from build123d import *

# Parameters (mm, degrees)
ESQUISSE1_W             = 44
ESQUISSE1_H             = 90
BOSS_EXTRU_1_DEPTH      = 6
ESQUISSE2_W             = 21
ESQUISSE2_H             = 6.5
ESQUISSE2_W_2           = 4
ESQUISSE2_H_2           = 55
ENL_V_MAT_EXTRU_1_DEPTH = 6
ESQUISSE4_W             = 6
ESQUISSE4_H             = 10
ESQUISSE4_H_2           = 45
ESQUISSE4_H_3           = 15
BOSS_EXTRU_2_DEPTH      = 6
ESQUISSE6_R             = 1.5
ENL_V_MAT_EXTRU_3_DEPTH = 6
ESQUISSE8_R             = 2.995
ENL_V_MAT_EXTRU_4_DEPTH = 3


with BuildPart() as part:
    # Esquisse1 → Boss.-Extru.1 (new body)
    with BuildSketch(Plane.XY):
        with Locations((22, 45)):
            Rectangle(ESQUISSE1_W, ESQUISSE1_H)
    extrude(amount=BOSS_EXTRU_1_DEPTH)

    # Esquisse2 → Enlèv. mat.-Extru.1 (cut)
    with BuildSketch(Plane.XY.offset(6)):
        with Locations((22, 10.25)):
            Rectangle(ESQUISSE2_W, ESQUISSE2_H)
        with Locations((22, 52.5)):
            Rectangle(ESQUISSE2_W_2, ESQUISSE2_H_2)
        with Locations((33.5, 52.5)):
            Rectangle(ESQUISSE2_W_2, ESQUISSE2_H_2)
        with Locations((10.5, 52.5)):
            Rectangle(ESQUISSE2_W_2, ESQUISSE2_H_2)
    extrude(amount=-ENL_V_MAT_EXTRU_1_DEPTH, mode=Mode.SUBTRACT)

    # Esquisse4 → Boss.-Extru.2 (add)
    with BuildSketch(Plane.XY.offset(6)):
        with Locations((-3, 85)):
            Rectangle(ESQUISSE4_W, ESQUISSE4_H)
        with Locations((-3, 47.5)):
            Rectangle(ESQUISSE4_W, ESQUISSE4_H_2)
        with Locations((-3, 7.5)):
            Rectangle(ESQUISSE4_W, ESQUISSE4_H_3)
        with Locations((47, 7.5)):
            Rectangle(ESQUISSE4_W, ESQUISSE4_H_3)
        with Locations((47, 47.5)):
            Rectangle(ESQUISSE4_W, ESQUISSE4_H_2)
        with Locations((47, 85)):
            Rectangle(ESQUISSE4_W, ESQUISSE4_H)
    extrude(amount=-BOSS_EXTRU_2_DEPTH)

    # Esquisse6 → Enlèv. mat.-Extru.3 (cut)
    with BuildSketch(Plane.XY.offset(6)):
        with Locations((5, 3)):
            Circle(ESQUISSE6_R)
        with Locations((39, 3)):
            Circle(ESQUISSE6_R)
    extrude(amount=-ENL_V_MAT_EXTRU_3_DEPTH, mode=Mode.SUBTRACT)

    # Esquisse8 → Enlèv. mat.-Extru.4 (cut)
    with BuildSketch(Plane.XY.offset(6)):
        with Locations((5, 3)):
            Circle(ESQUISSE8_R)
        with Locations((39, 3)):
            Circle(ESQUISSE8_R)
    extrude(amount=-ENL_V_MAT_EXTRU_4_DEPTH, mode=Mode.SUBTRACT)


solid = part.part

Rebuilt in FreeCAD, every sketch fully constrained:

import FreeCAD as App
import Part
import Sketcher
Q = App.Units.Quantity

doc = App.newDocument("Part")
params = doc.addObject("Spreadsheet::Sheet", "Params")
for row, (alias, value) in enumerate([
    ("sketch1_width", "44 mm"),
    ("sketch1_height", "90 mm"),
    ("pad1_length", "6 mm"),
    ("sketch2_width", "21 mm"),
    ("sketch2_width2", "4 mm"),
    ("sketch2_height", "55 mm"),
    ("sketch2_height2", "6.5 mm"),
    ("pocket1_length", "6 mm"),
    ("sketch3_width", "6 mm"),
    ("sketch3_height", "10 mm"),
    ("sketch3_height2", "45 mm"),
    ("sketch3_height3", "15 mm"),
    ("pad2_length", "6 mm"),
    ("sketch4_diameter", "3 mm"),
    ("pocket2_length", "6 mm"),
    ("sketch5_diameter", "5.99 mm"),
    ("pocket3_length", "3 mm"),
], start=1):
    params.set(f"A{row}", alias)
    params.set(f"B{row}", "=" + value)
    params.setAlias(f"B{row}", alias)

body = doc.addObject("PartDesign::Body", "Body")

# Sketch on XY plane
sketch1 = doc.addObject("Sketcher::SketchObject", "Sketch")
body.addObject(sketch1)
sketch1.AttachmentSupport = (doc.XY_Plane, [""])
sketch1.MapMode = "FlatFace"
sketch1.addGeometry([
    Part.LineSegment(App.Vector(0, 90, 0), App.Vector(0, 0, 0)),
    Part.LineSegment(App.Vector(0, 0, 0), App.Vector(44, 0, 0)),
    Part.LineSegment(App.Vector(44, 0, 0), App.Vector(44, 90, 0)),
    Part.LineSegment(App.Vector(44, 90, 0), App.Vector(0, 90, 0)),
], False)
sketch1.addConstraint([
    Sketcher.Constraint("Coincident", 0, 2, 1, 1),
    Sketcher.Constraint("Coincident", 1, 2, 2, 1),
    Sketcher.Constraint("Coincident", 2, 2, 3, 1),
    Sketcher.Constraint("Coincident", 3, 2, 0, 1),
    Sketcher.Constraint("Vertical", 0),
    Sketcher.Constraint("Horizontal", 1),
    Sketcher.Constraint("Vertical", 2),
    Sketcher.Constraint("Horizontal", 3),
    Sketcher.Constraint("Coincident", 0, 2, -1, 1),
    Sketcher.Constraint("DistanceX", 1, 1, 1, 2, Q("44 mm")),
    Sketcher.Constraint("DistanceY", 0, 2, 0, 1, Q("90 mm")),
])
sketch1.setExpression("Constraints[9]", "Params.sketch1_width")
sketch1.setExpression("Constraints[10]", "Params.sketch1_height")
pad1 = doc.addObject("PartDesign::Pad", "Pad")
body.addObject(pad1)
pad1.Profile = sketch1
pad1.setExpression("Length", "Params.pad1_length")

# Sketch on XY plane
sketch2 = doc.addObject("Sketcher::SketchObject", "Sketch001")
body.addObject(sketch2)
sketch2.AttachmentSupport = (doc.XY_Plane, [""])
sketch2.MapMode = "FlatFace"
sketch2.AttachmentOffset = App.Placement(App.Vector(0, 0, 6), App.Rotation())
sketch2.addGeometry([
    Part.LineSegment(App.Vector(11.5, 13.5, 0), App.Vector(11.5, 7, 0)),  # 0
    Part.LineSegment(App.Vector(11.5, 7, 0), App.Vector(32.5, 7, 0)),  # 1
    Part.LineSegment(App.Vector(32.5, 7, 0), App.Vector(32.5, 13.5, 0)),  # 2
    Part.LineSegment(App.Vector(32.5, 13.5, 0), App.Vector(11.5, 13.5, 0)),  # 3
    Part.LineSegment(App.Vector(20, 80, 0), App.Vector(20, 25, 0)),  # 4
    Part.LineSegment(App.Vector(20, 25, 0), App.Vector(24, 25, 0)),  # 5
    Part.LineSegment(App.Vector(24, 25, 0), App.Vector(24, 80, 0)),  # 6
    Part.LineSegment(App.Vector(24, 80, 0), App.Vector(20, 80, 0)),  # 7
    Part.LineSegment(App.Vector(31.5, 80, 0), App.Vector(31.5, 25, 0)),  # 8
    Part.LineSegment(App.Vector(31.5, 25, 0), App.Vector(35.5, 25, 0)),  # 9
    Part.LineSegment(App.Vector(35.5, 25, 0), App.Vector(35.5, 80, 0)),  # 10
    Part.LineSegment(App.Vector(35.5, 80, 0), App.Vector(31.5, 80, 0)),  # 11
    Part.LineSegment(App.Vector(8.5, 80, 0), App.Vector(8.5, 25, 0)),  # 12
    Part.LineSegment(App.Vector(8.5, 25, 0), App.Vector(12.5, 25, 0)),  # 13
    Part.LineSegment(App.Vector(12.5, 25, 0), App.Vector(12.5, 80, 0)),  # 14
    Part.LineSegment(App.Vector(12.5, 80, 0), App.Vector(8.5, 80, 0)),  # 15
], False)
sketch2.addConstraint([
    Sketcher.Constraint("Coincident", 0, 2, 1, 1),
    Sketcher.Constraint("Coincident", 1, 2, 2, 1),
    Sketcher.Constraint("Coincident", 2, 2, 3, 1),
    Sketcher.Constraint("Coincident", 3, 2, 0, 1),
    Sketcher.Constraint("Coincident", 4, 2, 5, 1),
    Sketcher.Constraint("Coincident", 5, 2, 6, 1),
    Sketcher.Constraint("Coincident", 6, 2, 7, 1),
    Sketcher.Constraint("Coincident", 7, 2, 4, 1),
    Sketcher.Constraint("Coincident", 8, 2, 9, 1),
    Sketcher.Constraint("Coincident", 9, 2, 10, 1),
    Sketcher.Constraint("Coincident", 10, 2, 11, 1),
    Sketcher.Constraint("Coincident", 11, 2, 8, 1),
    Sketcher.Constraint("Coincident", 12, 2, 13, 1),
    Sketcher.Constraint("Coincident", 13, 2, 14, 1),
    Sketcher.Constraint("Coincident", 14, 2, 15, 1),
    Sketcher.Constraint("Coincident", 15, 2, 12, 1),
    Sketcher.Constraint("Vertical", 0),
    Sketcher.Constraint("Horizontal", 1),
    Sketcher.Constraint("Vertical", 2),
    Sketcher.Constraint("Horizontal", 3),
    Sketcher.Constraint("Vertical", 4),
    Sketcher.Constraint("Horizontal", 5),
    Sketcher.Constraint("Vertical", 6),
    Sketcher.Constraint("Horizontal", 7),
    Sketcher.Constraint("Vertical", 8),
    Sketcher.Constraint("Horizontal", 9),
    Sketcher.Constraint("Vertical", 10),
    Sketcher.Constraint("Horizontal", 11),
    Sketcher.Constraint("Vertical", 12),
    Sketcher.Constraint("Horizontal", 13),
    Sketcher.Constraint("Vertical", 14),
    Sketcher.Constraint("Horizontal", 15),
    Sketcher.Constraint("Horizontal", 5, 2, 8, 2),
    Sketcher.Constraint("Horizontal", 7, 2, 10, 2),
    Sketcher.Constraint("Horizontal", 9, 2, 12, 2),
    Sketcher.Constraint("Horizontal", 11, 2, 14, 2),
    Sketcher.Constraint("Equal", 7, 9),
    Sketcher.Constraint("Equal", 11, 13),
    Sketcher.Constraint("DistanceX", 1, 1, 1, 2, Q("21 mm")),
    Sketcher.Constraint("DistanceX", 5, 1, 5, 2, Q("4 mm")),
    Sketcher.Constraint("DistanceY", 4, 2, 4, 1, Q("55 mm")),
    Sketcher.Constraint("DistanceY", 0, 2, 0, 1, Q("6.5 mm")),
    Sketcher.Constraint("DistanceY", -1, 1, 0, 2, Q("7 mm")),
    Sketcher.Constraint("DistanceX", -1, 1, 4, 2, Q("20 mm")),
    Sketcher.Constraint("DistanceY", -1, 1, 4, 2, Q("25 mm")),
    Sketcher.Constraint("DistanceX", 8, 2, 2, 2, Q("1 mm")),
    Sketcher.Constraint("DistanceX", 12, 2, 3, 2, Q("3 mm")),
    Sketcher.Constraint("DistanceX", -1, 1, 0, 2, Q("11.5 mm")),
])
sketch2.setExpression("Constraints[38]", "Params.sketch2_width")
sketch2.setExpression("Constraints[39]", "Params.sketch2_width2")
sketch2.setExpression("Constraints[40]", "Params.sketch2_height")
sketch2.setExpression("Constraints[41]", "Params.sketch2_height2")
pocket1 = doc.addObject("PartDesign::Pocket", "Pocket")
body.addObject(pocket1)
pocket1.Profile = sketch2
pocket1.setExpression("Length", "Params.pocket1_length")

# Sketch on XY plane
sketch3 = doc.addObject("Sketcher::SketchObject", "Sketch002")
body.addObject(sketch3)
sketch3.AttachmentSupport = (doc.XY_Plane, [""])
sketch3.MapMode = "FlatFace"
sketch3.AttachmentOffset = App.Placement(App.Vector(0, 0, 6), App.Rotation())
sketch3.addGeometry([
    Part.LineSegment(App.Vector(-6, 90, 0), App.Vector(-6, 80, 0)),  # 0
    Part.LineSegment(App.Vector(-6, 80, 0), App.Vector(0, 80, 0)),  # 1
    Part.LineSegment(App.Vector(0, 80, 0), App.Vector(0, 90, 0)),  # 2
    Part.LineSegment(App.Vector(0, 90, 0), App.Vector(-6, 90, 0)),  # 3
    Part.LineSegment(App.Vector(-6, 70, 0), App.Vector(-6, 25, 0)),  # 4
    Part.LineSegment(App.Vector(-6, 25, 0), App.Vector(0, 25, 0)),  # 5
    Part.LineSegment(App.Vector(0, 25, 0), App.Vector(0, 70, 0)),  # 6
    Part.LineSegment(App.Vector(0, 70, 0), App.Vector(-6, 70, 0)),  # 7
    Part.LineSegment(App.Vector(-6, 15, 0), App.Vector(-6, 0, 0)),  # 8
    Part.LineSegment(App.Vector(-6, 0, 0), App.Vector(0, 0, 0)),  # 9
    Part.LineSegment(App.Vector(0, 0, 0), App.Vector(0, 15, 0)),  # 10
    Part.LineSegment(App.Vector(0, 15, 0), App.Vector(-6, 15, 0)),  # 11
    Part.LineSegment(App.Vector(44, 15, 0), App.Vector(44, 0, 0)),  # 12
    Part.LineSegment(App.Vector(44, 0, 0), App.Vector(50, 0, 0)),  # 13
    Part.LineSegment(App.Vector(50, 0, 0), App.Vector(50, 15, 0)),  # 14
    Part.LineSegment(App.Vector(50, 15, 0), App.Vector(44, 15, 0)),  # 15
    Part.LineSegment(App.Vector(44, 70, 0), App.Vector(44, 25, 0)),  # 16
    Part.LineSegment(App.Vector(44, 25, 0), App.Vector(50, 25, 0)),  # 17
    Part.LineSegment(App.Vector(50, 25, 0), App.Vector(50, 70, 0)),  # 18
    Part.LineSegment(App.Vector(50, 70, 0), App.Vector(44, 70, 0)),  # 19
    Part.LineSegment(App.Vector(44, 90, 0), App.Vector(44, 80, 0)),  # 20
    Part.LineSegment(App.Vector(44, 80, 0), App.Vector(50, 80, 0)),  # 21
    Part.LineSegment(App.Vector(50, 80, 0), App.Vector(50, 90, 0)),  # 22
    Part.LineSegment(App.Vector(50, 90, 0), App.Vector(44, 90, 0)),  # 23
], False)
sketch3.addConstraint([
    Sketcher.Constraint("Coincident", 0, 2, 1, 1),
    Sketcher.Constraint("Coincident", 1, 2, 2, 1),
    Sketcher.Constraint("Coincident", 2, 2, 3, 1),
    Sketcher.Constraint("Coincident", 3, 2, 0, 1),
    Sketcher.Constraint("Coincident", 4, 2, 5, 1),
    Sketcher.Constraint("Coincident", 5, 2, 6, 1),
    Sketcher.Constraint("Coincident", 6, 2, 7, 1),
    Sketcher.Constraint("Coincident", 7, 2, 4, 1),
    Sketcher.Constraint("Coincident", 8, 2, 9, 1),
    Sketcher.Constraint("Coincident", 9, 2, 10, 1),
    Sketcher.Constraint("Coincident", 10, 2, 11, 1),
    Sketcher.Constraint("Coincident", 11, 2, 8, 1),
    Sketcher.Constraint("Coincident", 12, 2, 13, 1),
    Sketcher.Constraint("Coincident", 13, 2, 14, 1),
    Sketcher.Constraint("Coincident", 14, 2, 15, 1),
    Sketcher.Constraint("Coincident", 15, 2, 12, 1),
    Sketcher.Constraint("Coincident", 16, 2, 17, 1),
    Sketcher.Constraint("Coincident", 17, 2, 18, 1),
    Sketcher.Constraint("Coincident", 18, 2, 19, 1),
    Sketcher.Constraint("Coincident", 19, 2, 16, 1),
    Sketcher.Constraint("Coincident", 20, 2, 21, 1),
    Sketcher.Constraint("Coincident", 21, 2, 22, 1),
    Sketcher.Constraint("Coincident", 22, 2, 23, 1),
    Sketcher.Constraint("Coincident", 23, 2, 20, 1),
    Sketcher.Constraint("Vertical", 0),
    Sketcher.Constraint("Horizontal", 1),
    Sketcher.Constraint("Vertical", 2),
    Sketcher.Constraint("Horizontal", 3),
    Sketcher.Constraint("Vertical", 4),
    Sketcher.Constraint("Horizontal", 5),
    Sketcher.Constraint("Vertical", 6),
    Sketcher.Constraint("Horizontal", 7),
    Sketcher.Constraint("Vertical", 8),
    Sketcher.Constraint("Horizontal", 9),
    Sketcher.Constraint("Vertical", 10),
    Sketcher.Constraint("Horizontal", 11),
    Sketcher.Constraint("Vertical", 12),
    Sketcher.Constraint("Horizontal", 13),
    Sketcher.Constraint("Vertical", 14),
    Sketcher.Constraint("Horizontal", 15),
    Sketcher.Constraint("Vertical", 16),
    Sketcher.Constraint("Horizontal", 17),
    Sketcher.Constraint("Vertical", 18),
    Sketcher.Constraint("Horizontal", 19),
    Sketcher.Constraint("Vertical", 20),
    Sketcher.Constraint("Horizontal", 21),
    Sketcher.Constraint("Vertical", 22),
    Sketcher.Constraint("Horizontal", 23),
    Sketcher.Constraint("Coincident", 9, 2, -1, 1),
    Sketcher.Constraint("PointOnObject", 1, 2, -2),
    Sketcher.Constraint("PointOnObject", 5, 2, -2),
    Sketcher.Constraint("PointOnObject", 12, 2, -1),
    Sketcher.Constraint("Horizontal", 11, 2, 14, 2),
    Sketcher.Constraint("Horizontal", 5, 2, 16, 2),
    Sketcher.Constraint("Horizontal", 7, 2, 18, 2),
    Sketcher.Constraint("Horizontal", 1, 2, 20, 2),
    Sketcher.Constraint("Horizontal", 3, 2, 22, 2),
    Sketcher.Constraint("Vertical", 3, 2, 4, 2),
    Sketcher.Constraint("Vertical", 7, 2, 8, 2),
    Sketcher.Constraint("Vertical", 15, 2, 16, 2),
    Sketcher.Constraint("Vertical", 14, 2, 17, 2),
    Sketcher.Constraint("Vertical", 19, 2, 20, 2),
    Sketcher.Constraint("Vertical", 18, 2, 21, 2),
    Sketcher.Constraint("Equal", 11, 13),
    Sketcher.Constraint("DistanceX", 1, 1, 1, 2, Q("6 mm")),
    Sketcher.Constraint("DistanceY", 0, 2, 0, 1, Q("10 mm")),
    Sketcher.Constraint("DistanceY", 4, 2, 4, 1, Q("45 mm")),
    Sketcher.Constraint("DistanceY", 8, 2, 8, 1, Q("15 mm")),
    Sketcher.Constraint("DistanceY", -1, 1, 0, 2, Q("80 mm")),
    Sketcher.Constraint("DistanceY", -1, 1, 4, 2, Q("25 mm")),
    Sketcher.Constraint("DistanceX", -1, 1, 12, 2, Q("44 mm")),
])
sketch3.setExpression("Constraints[64]", "Params.sketch3_width")
sketch3.setExpression("Constraints[65]", "Params.sketch3_height")
sketch3.setExpression("Constraints[66]", "Params.sketch3_height2")
sketch3.setExpression("Constraints[67]", "Params.sketch3_height3")
pad2 = doc.addObject("PartDesign::Pad", "Pad001")
body.addObject(pad2)
pad2.Profile = sketch3
pad2.setExpression("Length", "Params.pad2_length")
pad2.Reversed = True

# Sketch on XY plane
sketch4 = doc.addObject("Sketcher::SketchObject", "Sketch003")
body.addObject(sketch4)
sketch4.AttachmentSupport = (doc.XY_Plane, [""])
sketch4.MapMode = "FlatFace"
sketch4.AttachmentOffset = App.Placement(App.Vector(0, 0, 6), App.Rotation())
sketch4.addGeometry([
    Part.Circle(App.Vector(5, 3, 0), App.Vector(0, 0, 1), 1.5),
    Part.Circle(App.Vector(39, 3, 0), App.Vector(0, 0, 1), 1.5),
], False)
sketch4.addConstraint([
    Sketcher.Constraint("Equal", 0, 1),
    Sketcher.Constraint("Horizontal", 0, 3, 1, 3),
    Sketcher.Constraint("Diameter", 0, Q("3 mm")),
    Sketcher.Constraint("DistanceX", -1, 1, 0, 3, Q("5 mm")),
    Sketcher.Constraint("DistanceY", -1, 1, 0, 3, Q("3 mm")),
    Sketcher.Constraint("DistanceX", -1, 1, 1, 3, Q("39 mm")),
])
sketch4.setExpression("Constraints[2]", "Params.sketch4_diameter")
pocket2 = doc.addObject("PartDesign::Pocket", "Pocket001")
body.addObject(pocket2)
pocket2.Profile = sketch4
pocket2.setExpression("Length", "Params.pocket2_length")

# Sketch on XY plane
sketch5 = doc.addObject("Sketcher::SketchObject", "Sketch004")
body.addObject(sketch5)
sketch5.AttachmentSupport = (doc.XY_Plane, [""])
sketch5.MapMode = "FlatFace"
sketch5.AttachmentOffset = App.Placement(App.Vector(0, 0, 6), App.Rotation())
sketch5.addGeometry([
    Part.Circle(App.Vector(5, 3, 0), App.Vector(0, 0, 1), 3),
    Part.Circle(App.Vector(39, 3, 0), App.Vector(0, 0, 1), 3),
], False)
sketch5.addConstraint([
    Sketcher.Constraint("Equal", 0, 1),
    Sketcher.Constraint("Horizontal", 0, 3, 1, 3),
    Sketcher.Constraint("Diameter", 0, Q("5.99 mm")),
    Sketcher.Constraint("DistanceX", -1, 1, 0, 3, Q("5 mm")),
    Sketcher.Constraint("DistanceY", -1, 1, 0, 3, Q("3 mm")),
    Sketcher.Constraint("DistanceX", -1, 1, 1, 3, Q("39 mm")),
])
sketch5.setExpression("Constraints[2]", "Params.sketch5_diameter")
pocket3 = doc.addObject("PartDesign::Pocket", "Pocket002")
body.addObject(pocket3)
pocket3.Profile = sketch5
pocket3.setExpression("Length", "Params.pocket3_length")

doc.recompute()
